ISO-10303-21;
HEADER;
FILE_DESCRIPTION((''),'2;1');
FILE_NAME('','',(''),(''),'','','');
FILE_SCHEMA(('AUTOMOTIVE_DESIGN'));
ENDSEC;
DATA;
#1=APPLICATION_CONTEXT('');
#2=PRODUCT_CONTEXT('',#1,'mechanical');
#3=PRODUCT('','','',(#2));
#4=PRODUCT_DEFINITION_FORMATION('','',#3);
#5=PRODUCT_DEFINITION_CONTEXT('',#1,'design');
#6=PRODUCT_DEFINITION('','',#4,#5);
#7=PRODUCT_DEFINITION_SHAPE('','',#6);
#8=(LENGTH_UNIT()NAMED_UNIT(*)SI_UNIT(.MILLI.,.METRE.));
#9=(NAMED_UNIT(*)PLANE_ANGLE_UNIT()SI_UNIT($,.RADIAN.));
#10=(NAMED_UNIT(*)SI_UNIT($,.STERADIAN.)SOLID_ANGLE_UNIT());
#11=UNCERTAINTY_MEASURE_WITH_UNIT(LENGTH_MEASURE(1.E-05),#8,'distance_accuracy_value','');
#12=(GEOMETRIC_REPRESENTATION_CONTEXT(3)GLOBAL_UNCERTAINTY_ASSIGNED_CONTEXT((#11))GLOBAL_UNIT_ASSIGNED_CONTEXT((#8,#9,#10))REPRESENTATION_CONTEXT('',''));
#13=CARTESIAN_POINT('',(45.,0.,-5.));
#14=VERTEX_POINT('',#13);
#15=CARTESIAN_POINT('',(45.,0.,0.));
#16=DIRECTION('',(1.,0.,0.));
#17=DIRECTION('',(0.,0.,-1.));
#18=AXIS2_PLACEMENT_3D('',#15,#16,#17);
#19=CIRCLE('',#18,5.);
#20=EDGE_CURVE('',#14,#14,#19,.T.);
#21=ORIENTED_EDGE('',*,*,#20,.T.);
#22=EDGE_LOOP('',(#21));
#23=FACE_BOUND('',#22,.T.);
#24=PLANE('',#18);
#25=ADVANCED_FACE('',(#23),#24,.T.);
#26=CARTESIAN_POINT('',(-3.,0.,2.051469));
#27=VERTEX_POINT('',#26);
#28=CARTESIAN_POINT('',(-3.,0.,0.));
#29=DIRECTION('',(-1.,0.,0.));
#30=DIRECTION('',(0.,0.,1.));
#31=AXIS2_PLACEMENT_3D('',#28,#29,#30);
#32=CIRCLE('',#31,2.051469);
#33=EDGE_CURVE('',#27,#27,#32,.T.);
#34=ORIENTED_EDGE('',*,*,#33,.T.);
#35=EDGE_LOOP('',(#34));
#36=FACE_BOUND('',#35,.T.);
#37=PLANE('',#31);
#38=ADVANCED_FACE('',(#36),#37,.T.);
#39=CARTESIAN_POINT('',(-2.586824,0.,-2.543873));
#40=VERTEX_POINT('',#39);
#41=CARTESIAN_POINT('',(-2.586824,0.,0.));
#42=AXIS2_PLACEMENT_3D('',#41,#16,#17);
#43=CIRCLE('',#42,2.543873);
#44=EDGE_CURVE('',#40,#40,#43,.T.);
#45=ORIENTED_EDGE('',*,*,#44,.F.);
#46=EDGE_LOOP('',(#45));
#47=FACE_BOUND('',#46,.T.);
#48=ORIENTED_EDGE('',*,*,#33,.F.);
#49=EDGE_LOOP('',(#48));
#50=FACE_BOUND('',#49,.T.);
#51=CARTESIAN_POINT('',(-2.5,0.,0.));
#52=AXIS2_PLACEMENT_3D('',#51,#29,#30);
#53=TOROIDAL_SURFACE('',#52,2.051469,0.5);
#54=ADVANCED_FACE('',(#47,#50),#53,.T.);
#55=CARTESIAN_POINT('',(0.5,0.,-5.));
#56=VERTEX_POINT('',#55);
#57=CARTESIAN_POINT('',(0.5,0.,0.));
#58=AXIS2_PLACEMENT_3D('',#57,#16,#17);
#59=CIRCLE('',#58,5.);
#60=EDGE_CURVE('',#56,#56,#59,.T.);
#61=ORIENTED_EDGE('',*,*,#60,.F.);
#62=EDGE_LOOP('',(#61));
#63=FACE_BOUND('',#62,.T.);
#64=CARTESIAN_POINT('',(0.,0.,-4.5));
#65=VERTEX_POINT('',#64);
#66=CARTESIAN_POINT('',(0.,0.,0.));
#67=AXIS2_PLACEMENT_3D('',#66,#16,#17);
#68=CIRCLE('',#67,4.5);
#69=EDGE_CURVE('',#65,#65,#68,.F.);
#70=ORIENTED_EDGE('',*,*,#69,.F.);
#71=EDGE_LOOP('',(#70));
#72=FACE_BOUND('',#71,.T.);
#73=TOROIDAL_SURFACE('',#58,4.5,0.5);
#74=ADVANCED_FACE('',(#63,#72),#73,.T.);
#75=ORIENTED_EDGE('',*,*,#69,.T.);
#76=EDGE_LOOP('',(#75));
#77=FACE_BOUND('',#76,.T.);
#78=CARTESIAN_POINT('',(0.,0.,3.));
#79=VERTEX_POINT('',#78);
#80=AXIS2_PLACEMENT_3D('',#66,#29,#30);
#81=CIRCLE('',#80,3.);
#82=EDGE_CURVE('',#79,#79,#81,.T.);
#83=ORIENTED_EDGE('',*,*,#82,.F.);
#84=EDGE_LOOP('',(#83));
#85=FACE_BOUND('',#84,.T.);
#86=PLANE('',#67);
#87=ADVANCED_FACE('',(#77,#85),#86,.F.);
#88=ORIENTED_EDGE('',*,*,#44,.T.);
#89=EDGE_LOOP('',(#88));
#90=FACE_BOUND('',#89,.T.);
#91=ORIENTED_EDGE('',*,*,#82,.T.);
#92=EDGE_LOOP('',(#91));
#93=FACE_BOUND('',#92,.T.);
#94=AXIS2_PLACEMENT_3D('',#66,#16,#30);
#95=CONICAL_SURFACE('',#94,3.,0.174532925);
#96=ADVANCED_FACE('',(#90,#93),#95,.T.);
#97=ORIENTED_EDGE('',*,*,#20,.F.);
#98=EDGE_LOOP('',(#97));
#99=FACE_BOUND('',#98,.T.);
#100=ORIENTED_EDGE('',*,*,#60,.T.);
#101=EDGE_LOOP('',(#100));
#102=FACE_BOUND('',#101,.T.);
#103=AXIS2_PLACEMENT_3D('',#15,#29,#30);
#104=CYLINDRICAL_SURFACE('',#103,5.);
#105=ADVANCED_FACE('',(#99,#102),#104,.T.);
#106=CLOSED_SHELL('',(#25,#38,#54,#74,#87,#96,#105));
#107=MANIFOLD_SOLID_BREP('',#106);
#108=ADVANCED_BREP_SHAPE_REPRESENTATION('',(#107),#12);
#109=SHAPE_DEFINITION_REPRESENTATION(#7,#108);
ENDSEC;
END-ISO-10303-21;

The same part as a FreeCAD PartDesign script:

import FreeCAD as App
import Part
import Sketcher


def edges_at(feature, points):
    """Names of the edges that pass closest to the given points."""
    edges = feature.Shape.Edges
    near = lambda p: min(range(len(edges)), key=lambda i: edges[i].distToShape(Part.Vertex(*p))[0])
    return sorted({f"Edge{near(p) + 1}" for p in points})

doc = App.newDocument("Part")
body = doc.addObject("PartDesign::Body", "Body")

# Sketch on YZ plane
sketch1 = body.newObject("Sketcher::SketchObject", "Sketch")
sketch1.AttachmentSupport = (doc.getObject("YZ_Plane"), [""])
sketch1.MapMode = "FlatFace"
sketch1.addGeometry(Part.Circle(App.Vector(0, 0, 0), App.Vector(0, 0, 1), 5), False)
sketch1.addConstraint([
    Sketcher.Constraint("Coincident", 0, 3, -1, 1),
    Sketcher.Constraint("Diameter", 0, 10.0),
])
pad1 = body.newObject("PartDesign::Pad", "Pad")
pad1.Profile = sketch1
pad1.Length = 45

# Sketch on YZ plane
sketch2 = body.newObject("Sketcher::SketchObject", "Sketch001")
sketch2.AttachmentSupport = (doc.getObject("YZ_Plane"), [""])
sketch2.MapMode = "FlatFace"
sketch2.addGeometry(Part.Circle(App.Vector(0, 0, 0), App.Vector(0, 0, 1), 3), False)
sketch2.addConstraint([
    Sketcher.Constraint("Coincident", 0, 3, -1, 1),
    Sketcher.Constraint("Diameter", 0, 6.0),
])
pad2 = body.newObject("PartDesign::Pad", "Pad001")
pad2.Profile = sketch2
pad2.Length = 3
pad2.Reversed = True
pad2.TaperAngle = -10
doc.recompute()

fillet = body.newObject("PartDesign::Fillet", "Fillet")
fillet.Base = (pad2, edges_at(pad2, [(0, 0, 5), (-3, 0, -2.471)]))
fillet.Radius = 0.5

doc.recompute()
